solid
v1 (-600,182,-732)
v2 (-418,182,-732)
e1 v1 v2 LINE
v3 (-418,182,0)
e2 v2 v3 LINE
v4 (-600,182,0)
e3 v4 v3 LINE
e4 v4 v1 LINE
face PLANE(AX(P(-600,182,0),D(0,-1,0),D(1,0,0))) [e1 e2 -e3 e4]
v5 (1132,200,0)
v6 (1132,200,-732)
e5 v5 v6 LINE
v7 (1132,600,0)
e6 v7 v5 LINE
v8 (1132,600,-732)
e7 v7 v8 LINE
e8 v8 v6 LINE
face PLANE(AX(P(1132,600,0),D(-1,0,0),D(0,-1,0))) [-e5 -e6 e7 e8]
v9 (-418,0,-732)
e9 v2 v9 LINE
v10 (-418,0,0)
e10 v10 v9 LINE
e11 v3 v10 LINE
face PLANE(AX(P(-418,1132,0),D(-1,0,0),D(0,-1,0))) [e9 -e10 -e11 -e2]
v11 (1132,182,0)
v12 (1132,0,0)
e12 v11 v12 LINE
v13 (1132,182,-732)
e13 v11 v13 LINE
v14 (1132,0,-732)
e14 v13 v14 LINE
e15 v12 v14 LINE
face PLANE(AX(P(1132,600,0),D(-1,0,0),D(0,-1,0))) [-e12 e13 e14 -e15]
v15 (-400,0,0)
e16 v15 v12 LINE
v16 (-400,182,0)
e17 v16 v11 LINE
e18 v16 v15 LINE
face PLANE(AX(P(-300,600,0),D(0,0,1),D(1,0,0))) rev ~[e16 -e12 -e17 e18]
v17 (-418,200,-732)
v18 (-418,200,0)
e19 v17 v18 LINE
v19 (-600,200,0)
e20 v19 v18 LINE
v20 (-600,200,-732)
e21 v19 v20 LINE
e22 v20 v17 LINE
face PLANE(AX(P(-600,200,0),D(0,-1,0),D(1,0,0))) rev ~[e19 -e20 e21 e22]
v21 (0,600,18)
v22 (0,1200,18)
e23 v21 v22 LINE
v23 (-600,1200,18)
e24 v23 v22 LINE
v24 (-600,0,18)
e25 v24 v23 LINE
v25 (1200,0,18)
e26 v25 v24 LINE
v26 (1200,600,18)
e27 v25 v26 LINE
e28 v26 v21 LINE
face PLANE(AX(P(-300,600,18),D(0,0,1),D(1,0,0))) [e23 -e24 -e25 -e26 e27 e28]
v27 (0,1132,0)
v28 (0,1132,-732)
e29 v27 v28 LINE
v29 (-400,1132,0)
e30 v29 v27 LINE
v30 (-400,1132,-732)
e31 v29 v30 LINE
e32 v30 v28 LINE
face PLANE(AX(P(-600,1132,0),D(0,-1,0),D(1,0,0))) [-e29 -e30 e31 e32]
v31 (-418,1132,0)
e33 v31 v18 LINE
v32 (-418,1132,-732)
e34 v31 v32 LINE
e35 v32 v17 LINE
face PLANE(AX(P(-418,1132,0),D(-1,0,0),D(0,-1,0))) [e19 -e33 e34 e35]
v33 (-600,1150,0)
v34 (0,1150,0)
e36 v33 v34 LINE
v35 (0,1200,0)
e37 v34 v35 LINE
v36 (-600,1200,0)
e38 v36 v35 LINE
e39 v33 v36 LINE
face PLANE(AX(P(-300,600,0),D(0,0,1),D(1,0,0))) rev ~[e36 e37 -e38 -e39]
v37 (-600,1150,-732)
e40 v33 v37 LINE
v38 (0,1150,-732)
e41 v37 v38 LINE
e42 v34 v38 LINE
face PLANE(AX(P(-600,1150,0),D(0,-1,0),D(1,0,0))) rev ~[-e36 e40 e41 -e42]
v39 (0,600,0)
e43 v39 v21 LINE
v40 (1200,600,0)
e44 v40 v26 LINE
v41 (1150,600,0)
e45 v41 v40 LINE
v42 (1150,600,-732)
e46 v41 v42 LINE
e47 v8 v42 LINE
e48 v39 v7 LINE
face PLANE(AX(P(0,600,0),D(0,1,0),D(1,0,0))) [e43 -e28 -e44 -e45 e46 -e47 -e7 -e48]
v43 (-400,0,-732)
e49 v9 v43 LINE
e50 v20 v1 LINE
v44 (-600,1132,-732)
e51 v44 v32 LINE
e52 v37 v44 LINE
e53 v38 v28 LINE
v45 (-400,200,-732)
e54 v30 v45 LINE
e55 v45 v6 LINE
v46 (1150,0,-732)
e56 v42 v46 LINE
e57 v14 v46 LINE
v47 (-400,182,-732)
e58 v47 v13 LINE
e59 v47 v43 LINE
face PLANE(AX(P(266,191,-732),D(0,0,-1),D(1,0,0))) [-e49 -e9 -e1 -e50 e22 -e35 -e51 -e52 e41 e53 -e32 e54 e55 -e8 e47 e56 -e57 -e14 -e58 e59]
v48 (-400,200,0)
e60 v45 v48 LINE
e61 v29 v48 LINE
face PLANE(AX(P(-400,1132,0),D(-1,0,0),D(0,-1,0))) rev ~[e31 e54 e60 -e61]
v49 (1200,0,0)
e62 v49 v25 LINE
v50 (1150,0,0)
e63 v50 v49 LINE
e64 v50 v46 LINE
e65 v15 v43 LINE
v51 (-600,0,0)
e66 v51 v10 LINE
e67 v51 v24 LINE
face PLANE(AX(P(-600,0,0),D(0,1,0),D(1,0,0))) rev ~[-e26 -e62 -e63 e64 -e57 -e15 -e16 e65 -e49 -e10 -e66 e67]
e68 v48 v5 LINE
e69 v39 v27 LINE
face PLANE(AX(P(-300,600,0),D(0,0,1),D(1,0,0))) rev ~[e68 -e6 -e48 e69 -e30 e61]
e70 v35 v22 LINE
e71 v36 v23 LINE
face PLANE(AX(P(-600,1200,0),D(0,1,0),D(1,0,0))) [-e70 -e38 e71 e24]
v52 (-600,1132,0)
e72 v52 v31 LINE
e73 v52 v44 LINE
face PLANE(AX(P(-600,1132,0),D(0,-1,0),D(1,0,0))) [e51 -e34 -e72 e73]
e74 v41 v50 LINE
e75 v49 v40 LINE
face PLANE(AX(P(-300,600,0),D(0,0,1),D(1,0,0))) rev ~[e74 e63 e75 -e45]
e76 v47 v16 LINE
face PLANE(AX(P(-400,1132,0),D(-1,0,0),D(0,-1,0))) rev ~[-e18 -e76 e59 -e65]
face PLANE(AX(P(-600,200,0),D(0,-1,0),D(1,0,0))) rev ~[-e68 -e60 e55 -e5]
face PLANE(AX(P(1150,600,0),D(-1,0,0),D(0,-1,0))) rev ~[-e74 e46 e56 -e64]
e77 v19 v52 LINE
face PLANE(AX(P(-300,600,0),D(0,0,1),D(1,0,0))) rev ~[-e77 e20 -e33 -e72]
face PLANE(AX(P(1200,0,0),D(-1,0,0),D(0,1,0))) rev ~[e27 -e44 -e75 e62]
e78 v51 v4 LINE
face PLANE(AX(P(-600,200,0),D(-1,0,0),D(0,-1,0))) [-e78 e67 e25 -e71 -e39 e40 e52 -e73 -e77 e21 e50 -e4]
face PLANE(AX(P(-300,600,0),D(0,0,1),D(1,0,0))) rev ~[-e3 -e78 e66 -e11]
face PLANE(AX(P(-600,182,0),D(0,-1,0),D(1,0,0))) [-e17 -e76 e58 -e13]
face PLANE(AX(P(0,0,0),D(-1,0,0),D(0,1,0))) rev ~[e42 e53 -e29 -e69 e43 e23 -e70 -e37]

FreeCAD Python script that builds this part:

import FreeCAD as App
import Part
import Sketcher
Q = App.Units.Quantity


def add_polygon(sketch, points):
    """Adds a closed chain of lines whose ends are joined by coincident constraints."""
    first, n = sketch.GeometryCount, len(points)
    for a, b in zip(points, points[1:] + points[:1]):
        sketch.addGeometry(Part.LineSegment(App.Vector(*a, 0), App.Vector(*b, 0)), False)
    for i in range(n):
        sketch.addConstraint(Sketcher.Constraint("Coincident", first + i, 2, first + (i + 1) % n, 1))

doc = App.newDocument("Part")
body = doc.addObject("PartDesign::Body", "Body")

sketch1 = doc.addObject("Sketcher::SketchObject", "Sketch")
body.addObject(sketch1)
sketch1.AttachmentSupport = (doc.XY_Plane, [""])
sketch1.MapMode = "FlatFace"
add_polygon(sketch1, [(0, 600), (0, 0), (1200, 0), (1200, 600)])
sketch1.addConstraint(Sketcher.Constraint("Vertical", 0))
sketch1.addConstraint(Sketcher.Constraint("Horizontal", 1))
sketch1.addConstraint(Sketcher.Constraint("Vertical", 2))
sketch1.addConstraint(Sketcher.Constraint("Horizontal", 3))
sketch1.addConstraint(Sketcher.Constraint("Coincident", 0, 2, -1, 1))
sketch1.addConstraint(Sketcher.Constraint("DistanceX", 1, 1, 1, 2, Q("1200 mm")))
sketch1.addConstraint(Sketcher.Constraint("DistanceY", 0, 2, 0, 1, Q("600 mm")))
pad1 = doc.addObject("PartDesign::Pad", "Pad")
body.addObject(pad1)
pad1.Profile = sketch1
pad1.Length = 18

sketch2 = doc.addObject("Sketcher::SketchObject", "Sketch001")
body.addObject(sketch2)
sketch2.AttachmentSupport = (doc.XY_Plane, [""])
sketch2.MapMode = "FlatFace"
add_polygon(sketch2, [(-600, 1200), (-600, 0), (0, 0), (0, 1200)])
sketch2.addConstraint(Sketcher.Constraint("Vertical", 0))
sketch2.addConstraint(Sketcher.Constraint("Horizontal", 1))
sketch2.addConstraint(Sketcher.Constraint("Vertical", 2))
sketch2.addConstraint(Sketcher.Constraint("Horizontal", 3))
sketch2.addConstraint(Sketcher.Constraint("Coincident", 1, 2, -1, 1))
sketch2.addConstraint(Sketcher.Constraint("DistanceX", 1, 1, 1, 2, Q("600 mm")))
sketch2.addConstraint(Sketcher.Constraint("DistanceY", 0, 2, 0, 1, Q("1200 mm")))
pad2 = doc.addObject("PartDesign::Pad", "Pad001")
body.addObject(pad2)
pad2.Profile = sketch2
pad2.Length = 18

sketch3 = doc.addObject("Sketcher::SketchObject", "Sketch002")
body.addObject(sketch3)
sketch3.AttachmentSupport = (doc.XY_Plane, [""])
sketch3.MapMode = "FlatFace"
add_polygon(sketch3, [(1132, 0), (1132, 600), (1150, 600), (1150, 0)])
add_polygon(sketch3, [(-600, 1132), (-600, 1150), (0, 1150), (0, 1132)])
sketch3.addConstraint(Sketcher.Constraint("Vertical", 0))
sketch3.addConstraint(Sketcher.Constraint("Horizontal", 1))
sketch3.addConstraint(Sketcher.Constraint("Vertical", 2))
sketch3.addConstraint(Sketcher.Constraint("Horizontal", 3))
sketch3.addConstraint(Sketcher.Constraint("Vertical", 4))
sketch3.addConstraint(Sketcher.Constraint("Horizontal", 5))
sketch3.addConstraint(Sketcher.Constraint("Vertical", 6))
sketch3.addConstraint(Sketcher.Constraint("Horizontal", 7))
sketch3.addConstraint(Sketcher.Constraint("PointOnObject", 2, 2, -1))
sketch3.addConstraint(Sketcher.Constraint("PointOnObject", 5, 2, -2))
sketch3.addConstraint(Sketcher.Constraint("Equal", 7, 0))
sketch3.addConstraint(Sketcher.Constraint("Equal", 3, 4))
sketch3.addConstraint(Sketcher.Constraint("DistanceX", 1, 1, 1, 2, Q("18 mm")))
sketch3.addConstraint(Sketcher.Constraint("DistanceX", 5, 1, 5, 2, Q("600 mm")))
sketch3.addConstraint(Sketcher.Constraint("DistanceX", -1, 1, 0, 2, Q("1132 mm")))
sketch3.addConstraint(Sketcher.Constraint("DistanceY", -1, 1, 4, 2, Q("1150 mm")))
pad3 = doc.addObject("PartDesign::Pad", "Pad002")
body.addObject(pad3)
pad3.Profile = sketch3
pad3.Length = 732
pad3.Reversed = True

sketch4 = doc.addObject("Sketcher::SketchObject", "Sketch003")
body.addObject(sketch4)
sketch4.AttachmentSupport = (doc.XY_Plane, [""])
sketch4.MapMode = "FlatFace"
add_polygon(sketch4, [(-418, 0), (-418, 1132), (-400, 1132), (-400, 0)])
sketch4.addConstraint(Sketcher.Constraint("Vertical", 0))
sketch4.addConstraint(Sketcher.Constraint("Horizontal", 1))
sketch4.addConstraint(Sketcher.Constraint("Vertical", 2))
sketch4.addConstraint(Sketcher.Constraint("Horizontal", 3))
sketch4.addConstraint(Sketcher.Constraint("PointOnObject", 2, 2, -1))
sketch4.addConstraint(Sketcher.Constraint("DistanceX", 1, 1, 1, 2, Q("18 mm")))
sketch4.addConstraint(Sketcher.Constraint("DistanceY", 0, 1, 0, 2, Q("1132 mm")))
sketch4.addConstraint(Sketcher.Constraint("DistanceX", 0, 2, -1, 1, Q("418 mm")))
pad4 = doc.addObject("PartDesign::Pad", "Pad003")
body.addObject(pad4)
pad4.Profile = sketch4
pad4.Length = 732
pad4.Reversed = True

sketch5 = doc.addObject("Sketcher::SketchObject", "Sketch004")
body.addObject(sketch5)
sketch5.AttachmentSupport = (doc.XY_Plane, [""])
sketch5.MapMode = "FlatFace"
add_polygon(sketch5, [(1132, 0), (-400, 0), (-400, 1132), (0, 1132), (0, 600), (1132, 600)])
sketch5.addConstraint(Sketcher.Constraint("Horizontal", 0))
sketch5.addConstraint(Sketcher.Constraint("Vertical", 1))
sketch5.addConstraint(Sketcher.Constraint("Horizontal", 2))
sketch5.addConstraint(Sketcher.Constraint("Vertical", 3))
sketch5.addConstraint(Sketcher.Constraint("Horizontal", 4))
sketch5.addConstraint(Sketcher.Constraint("Vertical", 5))
sketch5.addConstraint(Sketcher.Constraint("PointOnObject", 0, 2, -1))
sketch5.addConstraint(Sketcher.Constraint("PointOnObject", 2, 2, -2))
sketch5.addConstraint(Sketcher.Constraint("Equal", 4, 1))
sketch5.addConstraint(Sketcher.Constraint("DistanceX", 0, 2, 0, 1, Q("1532 mm")))
sketch5.addConstraint(Sketcher.Constraint("DistanceX", 2, 1, 2, 2, Q("400 mm")))
sketch5.addConstraint(Sketcher.Constraint("DistanceY", 3, 2, 3, 1, Q("532 mm")))
pad5 = doc.addObject("PartDesign::Pad", "Pad004")
body.addObject(pad5)
pad5.Profile = sketch5
pad5.Length = 18

sketch6 = doc.addObject("Sketcher::SketchObject", "Sketch005")
body.addObject(sketch6)
sketch6.AttachmentSupport = (doc.XY_Plane, [""])
sketch6.MapMode = "FlatFace"
add_polygon(sketch6, [(-600, 182), (-600, 200), (1132, 200), (1132, 182)])
sketch6.addConstraint(Sketcher.Constraint("Vertical", 0))
sketch6.addConstraint(Sketcher.Constraint("Horizontal", 1))
sketch6.addConstraint(Sketcher.Constraint("Vertical", 2))
sketch6.addConstraint(Sketcher.Constraint("Horizontal", 3))
sketch6.addConstraint(Sketcher.Constraint("DistanceX", 1, 1, 1, 2, Q("1732 mm")))
sketch6.addConstraint(Sketcher.Constraint("DistanceY", 0, 1, 0, 2, Q("18 mm")))
sketch6.addConstraint(Sketcher.Constraint("DistanceX", 0, 2, -1, 1, Q("600 mm")))
sketch6.addConstraint(Sketcher.Constraint("DistanceY", -1, 1, 0, 2, Q("200 mm")))
pad6 = doc.addObject("PartDesign::Pad", "Pad005")
body.addObject(pad6)
pad6.Profile = sketch6
pad6.Length = 732
pad6.Reversed = True

doc.recompute()
